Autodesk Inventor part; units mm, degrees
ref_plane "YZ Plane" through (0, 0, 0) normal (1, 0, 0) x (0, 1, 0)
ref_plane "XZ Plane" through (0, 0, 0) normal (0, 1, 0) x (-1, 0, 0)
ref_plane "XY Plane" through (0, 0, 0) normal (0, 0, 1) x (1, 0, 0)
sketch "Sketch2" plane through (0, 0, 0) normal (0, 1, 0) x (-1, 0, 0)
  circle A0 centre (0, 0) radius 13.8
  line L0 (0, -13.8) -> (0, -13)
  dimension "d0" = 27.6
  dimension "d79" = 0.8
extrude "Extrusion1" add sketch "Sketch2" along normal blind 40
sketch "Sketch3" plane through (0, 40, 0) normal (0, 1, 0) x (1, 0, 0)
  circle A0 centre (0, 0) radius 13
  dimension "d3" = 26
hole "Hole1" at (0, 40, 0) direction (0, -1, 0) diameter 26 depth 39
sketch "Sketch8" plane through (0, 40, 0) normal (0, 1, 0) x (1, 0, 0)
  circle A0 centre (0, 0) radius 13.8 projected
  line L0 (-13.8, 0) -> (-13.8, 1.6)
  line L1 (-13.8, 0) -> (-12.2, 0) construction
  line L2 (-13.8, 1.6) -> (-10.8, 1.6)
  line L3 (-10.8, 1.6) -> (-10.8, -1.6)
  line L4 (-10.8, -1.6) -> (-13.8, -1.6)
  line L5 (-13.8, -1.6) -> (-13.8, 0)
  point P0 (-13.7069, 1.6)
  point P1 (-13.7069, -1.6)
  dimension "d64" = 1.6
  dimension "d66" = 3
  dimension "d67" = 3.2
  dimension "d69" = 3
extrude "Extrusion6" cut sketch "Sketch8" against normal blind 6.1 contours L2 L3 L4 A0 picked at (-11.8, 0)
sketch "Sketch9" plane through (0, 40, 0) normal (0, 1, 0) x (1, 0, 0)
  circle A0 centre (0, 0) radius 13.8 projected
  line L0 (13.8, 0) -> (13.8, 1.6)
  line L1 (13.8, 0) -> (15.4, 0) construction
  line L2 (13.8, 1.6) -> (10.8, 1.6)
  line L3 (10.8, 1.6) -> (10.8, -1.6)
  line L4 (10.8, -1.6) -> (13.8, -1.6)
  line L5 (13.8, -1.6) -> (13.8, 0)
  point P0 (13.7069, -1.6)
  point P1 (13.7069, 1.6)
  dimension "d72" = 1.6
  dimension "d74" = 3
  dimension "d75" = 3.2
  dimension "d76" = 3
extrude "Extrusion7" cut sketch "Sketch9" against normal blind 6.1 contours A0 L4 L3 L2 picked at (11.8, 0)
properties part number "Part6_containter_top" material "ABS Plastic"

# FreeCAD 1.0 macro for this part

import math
import FreeCAD as App
import Part
import Sketcher
Q = App.Units.Quantity

doc = App.newDocument("Part")
body = doc.addObject("PartDesign::Body", "Body")

# Sketch on XZ plane
sketch1 = body.newObject("Sketcher::SketchObject", "Sketch")
sketch1.AttachmentSupport = (doc.getObject("XZ_Plane"), [""])
sketch1.MapMode = "FlatFace"
sketch1.addGeometry(Part.Circle(App.Vector(0, 0, 0), App.Vector(0, 0, 1), 14), False)
sketch1.addConstraint(Sketcher.Constraint("Coincident", 0, 3, -1, 1))
sketch1.addConstraint(Sketcher.Constraint("Diameter", 0, Q("27.6 mm")))
pad1 = body.newObject("PartDesign::Pad", "Pad")
pad1.Profile = sketch1
pad1.Length = 40
pad1.Reversed = True

# Sketch on XZ plane
sketch2 = body.newObject("Sketcher::SketchObject", "Sketch001")
sketch2.AttachmentSupport = (doc.getObject("XZ_Plane"), [""])
sketch2.MapMode = "FlatFace"
sketch2.AttachmentOffset = App.Placement(App.Vector(0, 0, -40), App.Rotation())
sketch2.addGeometry(Part.Circle(App.Vector(0, 0, 0), App.Vector(0, 0, 1), 13), False)
sketch2.addConstraint(Sketcher.Constraint("Coincident", 0, 3, -1, 1))
sketch2.addConstraint(Sketcher.Constraint("Diameter", 0, Q("26 mm")))
doc.recompute()
hole = body.newObject("PartDesign::Hole", "Hole")
hole.Profile = sketch2
hole.ThreadType = "None"
hole.Diameter = 26
hole.DepthType = "Dimension"
hole.Depth = 39
hole.DrillPoint = "Flat"
hole.Reversed = True

# Sketch on XZ plane
sketch3 = body.newObject("Sketcher::SketchObject", "Sketch002")
sketch3.AttachmentSupport = (doc.getObject("XZ_Plane"), [""])
sketch3.MapMode = "FlatFace"
sketch3.AttachmentOffset = App.Placement(App.Vector(0, 0, -40), App.Rotation())
sketch3.addGeometry(Part.LineSegment(App.Vector(-10.8, -1.6, 0), App.Vector(-13.7, -1.6, 0)), False)
sketch3.addGeometry(Part.ArcOfCircle(Part.Circle(App.Vector(0, 0, 0), App.Vector(0, 0, 1), 13.8), math.radians(173.34), math.radians(186.66)), False)
sketch3.addGeometry(Part.LineSegment(App.Vector(-13.7, 1.6, 0), App.Vector(-10.8, 1.6, 0)), False)
sketch3.addGeometry(Part.LineSegment(App.Vector(-10.8, 1.6, 0), App.Vector(-10.8, -1.6, 0)), False)
sketch3.addConstraint(Sketcher.Constraint("Coincident", 0, 2, 1, 2))
sketch3.addConstraint(Sketcher.Constraint("Coincident", 1, 1, 2, 1))
sketch3.addConstraint(Sketcher.Constraint("Coincident", 2, 2, 3, 1))
sketch3.addConstraint(Sketcher.Constraint("Coincident", 3, 2, 0, 1))
sketch3.addConstraint(Sketcher.Constraint("Horizontal", 0))
sketch3.addConstraint(Sketcher.Constraint("Horizontal", 2))
sketch3.addConstraint(Sketcher.Constraint("Vertical", 3))
sketch3.addConstraint(Sketcher.Constraint("Coincident", 1, 3, -1, 1))
sketch3.addConstraint(Sketcher.Constraint("Vertical", 0, 2, 1, 1))
sketch3.addConstraint(Sketcher.Constraint("DistanceY", 3, 2, 3, 1, Q("3.2 mm")))
sketch3.addConstraint(Sketcher.Constraint("Radius", 1, Q("13.8 mm")))
sketch3.addConstraint(Sketcher.Constraint("DistanceX", 2, 2, -1, 1, Q("10.8 mm")))
pocket1 = body.newObject("PartDesign::Pocket", "Pocket")
pocket1.Profile = sketch3
pocket1.Length = 6.1
pocket1.Reversed = True

# Sketch on XZ plane
sketch4 = body.newObject("Sketcher::SketchObject", "Sketch003")
sketch4.AttachmentSupport = (doc.getObject("XZ_Plane"), [""])
sketch4.MapMode = "FlatFace"
sketch4.AttachmentOffset = App.Placement(App.Vector(0, 0, -40), App.Rotation())
sketch4.addGeometry(Part.ArcOfCircle(Part.Circle(App.Vector(0, 0, 0), App.Vector(0, 0, 1), 13.8), math.radians(-6.66), math.radians(6.66)), False)
sketch4.addGeometry(Part.LineSegment(App.Vector(13.7, -1.6, 0), App.Vector(10.8, -1.6, 0)), False)
sketch4.addGeometry(Part.LineSegment(App.Vector(10.8, -1.6, 0), App.Vector(10.8, 1.6, 0)), False)
sketch4.addGeometry(Part.LineSegment(App.Vector(10.8, 1.6, 0), App.Vector(13.7, 1.6, 0)), False)
sketch4.addConstraint(Sketcher.Constraint("Coincident", 0, 1, 1, 1))
sketch4.addConstraint(Sketcher.Constraint("Coincident", 1, 2, 2, 1))
sketch4.addConstraint(Sketcher.Constraint("Coincident", 2, 2, 3, 1))
sketch4.addConstraint(Sketcher.Constraint("Coincident", 3, 2, 0, 2))
sketch4.addConstraint(Sketcher.Constraint("Horizontal", 1))
sketch4.addConstraint(Sketcher.Constraint("Vertical", 2))
sketch4.addConstraint(Sketcher.Constraint("Horizontal", 3))
sketch4.addConstraint(Sketcher.Constraint("Coincident", 0, 3, -1, 1))
sketch4.addConstraint(Sketcher.Constraint("Vertical", 0, 1, 3, 2))
sketch4.addConstraint(Sketcher.Constraint("DistanceY", 2, 1, 2, 2, Q("3.2 mm")))
sketch4.addConstraint(Sketcher.Constraint("Radius", 0, Q("13.8 mm")))
sketch4.addConstraint(Sketcher.Constraint("DistanceX", -1, 1, 1, 2, Q("10.8 mm")))
pocket2 = body.newObject("PartDesign::Pocket", "Pocket001")
pocket2.Profile = sketch4
pocket2.Length = 6.1
pocket2.Reversed = True

doc.recompute()
